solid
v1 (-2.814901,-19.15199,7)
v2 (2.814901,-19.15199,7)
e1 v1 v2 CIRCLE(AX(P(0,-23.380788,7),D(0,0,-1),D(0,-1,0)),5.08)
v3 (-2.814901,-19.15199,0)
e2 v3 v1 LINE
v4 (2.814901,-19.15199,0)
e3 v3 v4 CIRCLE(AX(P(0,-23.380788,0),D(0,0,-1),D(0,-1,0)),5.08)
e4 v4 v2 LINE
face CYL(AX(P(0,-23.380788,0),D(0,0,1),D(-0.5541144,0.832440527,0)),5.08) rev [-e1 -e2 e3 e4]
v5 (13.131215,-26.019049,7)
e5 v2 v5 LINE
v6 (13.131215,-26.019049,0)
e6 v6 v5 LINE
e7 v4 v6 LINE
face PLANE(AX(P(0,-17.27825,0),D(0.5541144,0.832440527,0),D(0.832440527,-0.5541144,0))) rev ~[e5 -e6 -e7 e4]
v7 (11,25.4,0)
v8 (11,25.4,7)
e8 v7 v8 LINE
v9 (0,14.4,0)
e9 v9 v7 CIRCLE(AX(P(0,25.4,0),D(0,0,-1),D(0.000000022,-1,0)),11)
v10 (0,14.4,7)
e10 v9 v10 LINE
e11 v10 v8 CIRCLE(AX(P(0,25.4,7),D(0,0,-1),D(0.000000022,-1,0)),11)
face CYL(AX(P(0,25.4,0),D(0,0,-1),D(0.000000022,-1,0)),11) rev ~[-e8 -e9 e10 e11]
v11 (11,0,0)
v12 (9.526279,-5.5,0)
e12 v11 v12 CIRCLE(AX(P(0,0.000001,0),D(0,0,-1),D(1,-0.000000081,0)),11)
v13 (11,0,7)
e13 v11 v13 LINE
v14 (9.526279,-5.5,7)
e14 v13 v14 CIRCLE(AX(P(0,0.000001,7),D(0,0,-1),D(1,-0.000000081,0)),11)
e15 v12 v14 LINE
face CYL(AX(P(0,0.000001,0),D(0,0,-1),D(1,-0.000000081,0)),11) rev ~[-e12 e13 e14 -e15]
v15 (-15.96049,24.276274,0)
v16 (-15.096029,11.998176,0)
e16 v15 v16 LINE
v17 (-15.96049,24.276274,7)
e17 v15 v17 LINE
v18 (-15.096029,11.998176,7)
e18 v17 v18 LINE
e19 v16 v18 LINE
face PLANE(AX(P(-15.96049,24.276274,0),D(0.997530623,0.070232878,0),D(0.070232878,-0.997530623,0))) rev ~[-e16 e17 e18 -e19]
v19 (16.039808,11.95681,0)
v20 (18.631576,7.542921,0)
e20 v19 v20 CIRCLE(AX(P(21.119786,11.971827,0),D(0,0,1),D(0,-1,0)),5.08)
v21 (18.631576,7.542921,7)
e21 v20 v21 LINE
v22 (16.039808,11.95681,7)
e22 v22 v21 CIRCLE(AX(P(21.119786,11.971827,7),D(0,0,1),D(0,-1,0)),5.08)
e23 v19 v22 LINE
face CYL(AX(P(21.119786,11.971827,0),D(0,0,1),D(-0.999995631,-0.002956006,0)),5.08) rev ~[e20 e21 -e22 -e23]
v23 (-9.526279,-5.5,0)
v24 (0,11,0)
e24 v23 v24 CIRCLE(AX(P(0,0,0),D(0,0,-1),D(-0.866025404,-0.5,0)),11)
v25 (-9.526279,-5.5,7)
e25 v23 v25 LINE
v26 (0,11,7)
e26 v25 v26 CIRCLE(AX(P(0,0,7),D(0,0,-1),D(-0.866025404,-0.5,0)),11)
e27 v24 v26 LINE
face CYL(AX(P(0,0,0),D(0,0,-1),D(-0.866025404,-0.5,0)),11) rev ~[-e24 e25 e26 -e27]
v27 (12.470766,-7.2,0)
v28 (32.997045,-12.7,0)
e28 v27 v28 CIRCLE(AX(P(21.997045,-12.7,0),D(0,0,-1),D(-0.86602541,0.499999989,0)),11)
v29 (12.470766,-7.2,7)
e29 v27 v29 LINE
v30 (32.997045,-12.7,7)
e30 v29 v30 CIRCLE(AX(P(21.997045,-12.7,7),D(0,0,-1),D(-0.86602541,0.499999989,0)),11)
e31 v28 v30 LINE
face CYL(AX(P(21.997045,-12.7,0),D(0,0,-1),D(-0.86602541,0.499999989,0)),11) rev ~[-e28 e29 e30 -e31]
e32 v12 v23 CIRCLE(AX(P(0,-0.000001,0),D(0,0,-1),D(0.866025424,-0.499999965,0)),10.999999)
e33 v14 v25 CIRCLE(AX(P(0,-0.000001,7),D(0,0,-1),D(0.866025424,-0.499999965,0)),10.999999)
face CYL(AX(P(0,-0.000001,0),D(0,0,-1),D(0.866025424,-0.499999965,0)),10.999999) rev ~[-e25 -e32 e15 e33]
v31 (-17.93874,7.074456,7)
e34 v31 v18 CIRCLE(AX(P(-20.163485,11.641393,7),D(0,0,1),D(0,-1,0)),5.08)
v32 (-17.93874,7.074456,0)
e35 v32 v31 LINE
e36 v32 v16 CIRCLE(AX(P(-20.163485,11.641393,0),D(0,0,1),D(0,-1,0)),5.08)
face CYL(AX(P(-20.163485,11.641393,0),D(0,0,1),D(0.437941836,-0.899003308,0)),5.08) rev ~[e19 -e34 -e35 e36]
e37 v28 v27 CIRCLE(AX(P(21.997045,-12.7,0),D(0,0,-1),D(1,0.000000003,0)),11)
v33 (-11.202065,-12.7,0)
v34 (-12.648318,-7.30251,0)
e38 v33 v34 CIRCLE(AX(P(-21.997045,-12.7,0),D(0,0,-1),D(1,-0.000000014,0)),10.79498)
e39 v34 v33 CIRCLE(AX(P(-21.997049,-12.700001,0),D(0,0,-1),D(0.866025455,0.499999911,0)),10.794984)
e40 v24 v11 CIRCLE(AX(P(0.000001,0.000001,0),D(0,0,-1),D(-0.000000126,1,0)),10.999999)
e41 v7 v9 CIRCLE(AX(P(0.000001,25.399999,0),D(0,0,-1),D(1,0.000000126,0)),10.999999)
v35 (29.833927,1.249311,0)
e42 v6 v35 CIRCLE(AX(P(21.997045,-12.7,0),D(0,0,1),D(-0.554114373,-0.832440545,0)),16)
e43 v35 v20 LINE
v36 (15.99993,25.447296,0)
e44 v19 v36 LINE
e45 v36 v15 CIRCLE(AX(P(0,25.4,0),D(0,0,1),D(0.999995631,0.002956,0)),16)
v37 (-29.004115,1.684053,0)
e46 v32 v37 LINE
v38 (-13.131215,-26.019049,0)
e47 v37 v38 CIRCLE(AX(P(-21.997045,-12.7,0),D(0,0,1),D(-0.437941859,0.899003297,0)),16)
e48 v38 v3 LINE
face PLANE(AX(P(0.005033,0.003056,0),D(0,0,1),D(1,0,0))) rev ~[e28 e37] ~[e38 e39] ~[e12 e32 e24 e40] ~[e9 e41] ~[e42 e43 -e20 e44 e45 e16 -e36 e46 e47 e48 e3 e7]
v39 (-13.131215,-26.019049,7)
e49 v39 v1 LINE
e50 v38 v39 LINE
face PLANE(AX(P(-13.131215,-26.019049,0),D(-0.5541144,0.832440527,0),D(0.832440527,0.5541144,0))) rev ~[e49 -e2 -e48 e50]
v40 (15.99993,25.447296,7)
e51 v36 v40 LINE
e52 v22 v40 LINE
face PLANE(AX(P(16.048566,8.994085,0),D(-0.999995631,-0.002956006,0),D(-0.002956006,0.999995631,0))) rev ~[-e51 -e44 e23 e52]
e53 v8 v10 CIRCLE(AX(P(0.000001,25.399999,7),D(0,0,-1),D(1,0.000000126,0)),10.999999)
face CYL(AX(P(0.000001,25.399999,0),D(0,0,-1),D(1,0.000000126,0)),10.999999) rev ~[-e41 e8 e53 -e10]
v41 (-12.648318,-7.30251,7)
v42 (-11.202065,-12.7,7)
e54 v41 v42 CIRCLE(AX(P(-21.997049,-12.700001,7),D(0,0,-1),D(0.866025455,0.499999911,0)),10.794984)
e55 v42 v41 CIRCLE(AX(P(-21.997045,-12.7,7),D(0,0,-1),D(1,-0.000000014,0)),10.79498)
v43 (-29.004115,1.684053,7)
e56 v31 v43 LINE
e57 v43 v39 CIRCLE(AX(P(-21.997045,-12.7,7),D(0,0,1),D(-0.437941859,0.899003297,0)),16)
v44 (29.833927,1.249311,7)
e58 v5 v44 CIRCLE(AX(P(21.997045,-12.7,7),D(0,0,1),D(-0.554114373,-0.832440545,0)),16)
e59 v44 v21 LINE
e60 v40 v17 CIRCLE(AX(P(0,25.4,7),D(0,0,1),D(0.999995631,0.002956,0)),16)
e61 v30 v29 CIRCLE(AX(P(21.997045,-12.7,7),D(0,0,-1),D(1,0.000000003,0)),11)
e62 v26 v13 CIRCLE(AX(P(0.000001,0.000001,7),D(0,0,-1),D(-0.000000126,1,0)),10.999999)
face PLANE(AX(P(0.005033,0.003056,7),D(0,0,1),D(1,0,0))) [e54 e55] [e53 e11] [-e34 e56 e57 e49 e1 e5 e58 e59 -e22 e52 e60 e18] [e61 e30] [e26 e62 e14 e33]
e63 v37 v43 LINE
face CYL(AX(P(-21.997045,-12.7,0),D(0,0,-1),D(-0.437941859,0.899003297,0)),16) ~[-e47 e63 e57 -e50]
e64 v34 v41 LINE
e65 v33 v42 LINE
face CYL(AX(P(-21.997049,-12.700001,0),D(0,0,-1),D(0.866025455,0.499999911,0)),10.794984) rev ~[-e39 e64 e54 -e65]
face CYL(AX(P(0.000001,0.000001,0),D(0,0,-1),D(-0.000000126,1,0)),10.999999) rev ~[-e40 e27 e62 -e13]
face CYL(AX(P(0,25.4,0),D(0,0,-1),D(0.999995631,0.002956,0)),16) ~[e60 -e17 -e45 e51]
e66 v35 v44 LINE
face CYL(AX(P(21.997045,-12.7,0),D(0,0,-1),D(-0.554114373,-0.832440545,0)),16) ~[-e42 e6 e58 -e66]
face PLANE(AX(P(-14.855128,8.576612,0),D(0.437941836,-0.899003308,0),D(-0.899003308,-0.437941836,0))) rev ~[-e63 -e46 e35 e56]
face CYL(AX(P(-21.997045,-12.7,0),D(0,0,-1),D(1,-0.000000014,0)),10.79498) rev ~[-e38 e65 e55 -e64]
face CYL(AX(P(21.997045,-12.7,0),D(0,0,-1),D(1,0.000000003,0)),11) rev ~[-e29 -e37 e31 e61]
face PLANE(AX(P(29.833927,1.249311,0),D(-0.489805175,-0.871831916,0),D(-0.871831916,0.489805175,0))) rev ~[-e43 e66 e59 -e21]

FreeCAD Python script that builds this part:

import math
import FreeCAD as App
import Part
import Sketcher
from FreeCAD import Vector


def edges_at(feature, points):
    """Names of the edges that pass closest to the given points."""
    edges = feature.Shape.Edges
    near = lambda p: min(range(len(edges)), key=lambda i: edges[i].distToShape(Part.Vertex(*p))[0])
    return sorted({f"Edge{near(p) + 1}" for p in points})

doc = App.newDocument("Part")
body = doc.addObject("PartDesign::Body", "Body")

# Sketch on XY plane
sketch1 = body.newObject("Sketcher::SketchObject", "Sketch")
sketch1.AttachmentSupport = (doc.getObject("XY_Plane"), [""])
sketch1.MapMode = "FlatFace"
sketch1.addGeometry([
    Part.LineSegment(Vector(-15, 9, 0), Vector(-29, 2, 0)),  # 0
    Part.ArcOfCircle(Part.Circle(Vector(-22, -13, 0), Vector(0, 0, 1), 16), math.radians(116), math.radians(304)),  # 1
    Part.LineSegment(Vector(-13, -26, 0), Vector(0, -17, 0)),  # 2
    Part.LineSegment(Vector(0, -17, 0), Vector(13, -26, 0)),  # 3
    Part.ArcOfCircle(Part.Circle(Vector(22, -13, 0), Vector(0, 0, 1), 16), math.radians(-124), math.radians(61)),  # 4
    Part.LineSegment(Vector(30, 1, 0), Vector(16, 9, 0)),  # 5
    Part.LineSegment(Vector(16, 9, 0), Vector(16, 25, 0)),  # 6
    Part.ArcOfCircle(Part.Circle(Vector(0, 25, 0), Vector(0, 0, 1), 16), math.radians(0), math.radians(184)),  # 7
    Part.LineSegment(Vector(-16, 24, 0), Vector(-15, 9, 0)),  # 8
    Part.ArcOfCircle(Part.Circle(Vector(-22, -13, 0), Vector(0, 0, 1), 11), math.radians(0), math.radians(30)),  # 9
    Part.ArcOfCircle(Part.Circle(Vector(-22, -13, 0), Vector(0, 0, 1), 11), math.radians(30), math.radians(360)),  # 10
    Part.ArcOfCircle(Part.Circle(Vector(0, 0, 0), Vector(0, 0, 1), 11), math.radians(-150), math.radians(-30)),  # 11
    Part.ArcOfCircle(Part.Circle(Vector(0, 0, 0), Vector(0, 0, 1), 11), math.radians(90), math.radians(210)),  # 12
    Part.ArcOfCircle(Part.Circle(Vector(0, 0, 0), Vector(0, 0, 1), 11), math.radians(0), math.radians(90)),  # 13
    Part.ArcOfCircle(Part.Circle(Vector(0, 0, 0), Vector(0, 0, 1), 11), math.radians(-30), math.radians(0)),  # 14
    Part.ArcOfCircle(Part.Circle(Vector(22, -13, 0), Vector(0, 0, 1), 11), math.radians(0), math.radians(150)),  # 15
    Part.ArcOfCircle(Part.Circle(Vector(22, -13, 0), Vector(0, 0, 1), 11), math.radians(150), math.radians(360)),  # 16
    Part.ArcOfCircle(Part.Circle(Vector(0, 25, 0), Vector(0, 0, 1), 11), math.radians(-90), math.radians(0)),  # 17
    Part.ArcOfCircle(Part.Circle(Vector(0, 25, 0), Vector(0, 0, 1), 11), math.radians(0), math.radians(270)),  # 18
], False)
sketch1.addConstraint([
    Sketcher.Constraint("Tangent", 0, 2, 1, 1),
    Sketcher.Constraint("Tangent", 1, 2, 2, 1),
    Sketcher.Constraint("Coincident", 2, 2, 3, 1),
    Sketcher.Constraint("Tangent", 3, 2, 4, 1),
    Sketcher.Constraint("Tangent", 4, 2, 5, 1),
    Sketcher.Constraint("Coincident", 5, 2, 6, 1),
    Sketcher.Constraint("Tangent", 6, 2, 7, 1),
    Sketcher.Constraint("Tangent", 7, 2, 8, 1),
    Sketcher.Constraint("Coincident", 8, 2, 0, 1),
    Sketcher.Constraint("Tangent", 9, 1, 10, 2),
    Sketcher.Constraint("Coincident", 10, 1, 9, 2),
    Sketcher.Constraint("Tangent", 11, 1, 12, 2),
    Sketcher.Constraint("Tangent", 12, 1, 13, 2),
    Sketcher.Constraint("Tangent", 13, 1, 14, 2),
    Sketcher.Constraint("Tangent", 14, 1, 11, 2),
    Sketcher.Constraint("Tangent", 15, 1, 16, 2),
    Sketcher.Constraint("Coincident", 16, 1, 15, 2),
    Sketcher.Constraint("Tangent", 17, 1, 18, 2),
    Sketcher.Constraint("Coincident", 18, 1, 17, 2),
    Sketcher.Constraint("Coincident", 11, 3, -1, 1),
    Sketcher.Constraint("Coincident", 9, 3, 1, 3),
    Sketcher.Constraint("Coincident", 15, 3, 4, 3),
    Sketcher.Constraint("Coincident", 17, 3, 7, 3),
    Sketcher.Constraint("Equal", 1, 4),
    Sketcher.Constraint("Equal", 4, 7),
    Sketcher.Constraint("Equal", 11, 12),
    Sketcher.Constraint("Equal", 14, 15),
    Sketcher.Constraint("Equal", 16, 17),
    Sketcher.Constraint("Symmetric", 1, 3, 4, 3, -2),
    Sketcher.Constraint("PointOnObject", 7, 3, -2),
    Sketcher.Constraint("PointOnObject", 2, 2, -2),
    Sketcher.Constraint("PointOnObject", 12, 1, -2),
    Sketcher.Constraint("PointOnObject", 13, 1, -1),
    Sketcher.Constraint("PointOnObject", 17, 1, -2),
    Sketcher.Constraint("Horizontal", 16, 3, 9, 1),
    Sketcher.Constraint("Horizontal", 11, 1, 14, 1),
    Sketcher.Constraint("Horizontal", 9, 1, 15, 1),
    Sketcher.Constraint("Horizontal", 17, 3, 18, 1),
    Sketcher.Constraint("Equal", 0, 8),
    Sketcher.Constraint("Radius", 1, 16.0),
    Sketcher.Constraint("Radius", 11, 10.999999),
    Sketcher.Constraint("DistanceY", 1, 3, -1, 1, 12.7),
    Sketcher.Constraint("DistanceY", -1, 1, 7, 3, 25.4),
    Sketcher.Constraint("DistanceY", 11, 1, -1, 1, 5.5),
    Sketcher.Constraint("DistanceY", 16, 1, -1, 1, 7.2),
    Sketcher.Constraint("Radius", 10, 10.79498),
    Sketcher.Constraint("DistanceY", 1, 2, 2, 2, 8.740799),
    Sketcher.Constraint("Distance", 2, 15.774358),
    Sketcher.Constraint("Distance", 5, 15.811948),
    Sketcher.Constraint("DistanceY", -1, 1, 4, 2, 1.249311),
    Sketcher.Constraint("DistanceX", 7, 2, -1, 1, 15.96049),
    Sketcher.Constraint("DistanceY", 10, 1, -1, 1, 7.30251),
])
pad1 = body.newObject("PartDesign::Pad", "Pad")
pad1.Profile = sketch1
pad1.Length = 7
doc.recompute()

fillet = body.newObject("PartDesign::Fillet", "Fillet")
fillet.Base = (pad1, edges_at(pad1, [(-14.855, 8.577, 3.5), (16.049, 8.994, 3.5), (0, -17.278, 3.5)]))
fillet.Radius = 5.08

doc.recompute()
